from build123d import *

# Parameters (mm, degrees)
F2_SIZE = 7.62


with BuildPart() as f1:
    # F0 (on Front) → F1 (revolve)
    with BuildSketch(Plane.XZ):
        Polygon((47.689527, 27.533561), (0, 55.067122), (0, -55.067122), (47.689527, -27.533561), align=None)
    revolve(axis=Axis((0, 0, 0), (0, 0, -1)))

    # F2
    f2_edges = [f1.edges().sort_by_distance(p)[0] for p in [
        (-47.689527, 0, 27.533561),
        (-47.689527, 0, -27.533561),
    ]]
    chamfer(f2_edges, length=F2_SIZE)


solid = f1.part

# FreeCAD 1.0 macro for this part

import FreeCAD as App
import Part
import Sketcher

V = App.Vector
Q = App.Units.Quantity


def edges_at(feature, points):
    """Names of the edges that pass closest to the given points."""
    edges = feature.Shape.Edges
    near = lambda p: min(range(len(edges)), key=lambda i: edges[i].distToShape(Part.Vertex(*p))[0])
    return sorted({f"Edge{near(p) + 1}" for p in points})


def add_polygon(sketch, points):
    """Adds a closed chain of lines whose ends are joined by coincident constraints."""
    first, n = sketch.GeometryCount, len(points)
    for a, b in zip(points, points[1:] + points[:1]):
        sketch.addGeometry(Part.LineSegment(App.Vector(*a, 0), App.Vector(*b, 0)), False)
    for i in range(n):
        sketch.addConstraint(Sketcher.Constraint("Coincident", first + i, 2, first + (i + 1) % n, 1))

doc = App.newDocument("Part")
params = doc.addObject("Spreadsheet::Sheet", "Params")
for row, (alias, value) in enumerate([
    ("revolution_angle", "360 deg"),
    ("chamfer_size", "0.3 in"),
], start=1):
    params.set(f"A{row}", alias)
    params.set(f"B{row}", "=" + value)
    params.setAlias(f"B{row}", alias)

body = doc.addObject("PartDesign::Body", "Body")

sketch1 = doc.addObject("Sketcher::SketchObject", "Sketch")
body.addObject(sketch1)
sketch1.AttachmentSupport = (doc.XZ_Plane, [""])
sketch1.MapMode = "FlatFace"
add_polygon(sketch1, [(48, 28), (0, 55), (0, -55), (48, -28)])
sketch1.addConstraint([
    Sketcher.Constraint("Vertical", 1),
    Sketcher.Constraint("Vertical", 3),
    Sketcher.Constraint("Symmetric", 0, 2, 1, 2, -1, 1),
    Sketcher.Constraint("Equal", 0, 2),
    Sketcher.Constraint("Angle", 0, Q("150 deg")),
    Sketcher.Constraint("DistanceY", 3, 1, 3, 2, Q("55.067122 mm")),
    Sketcher.Constraint("DistanceY", 1, 2, 1, 1, Q("110.134244 mm")),
])
revolution = doc.addObject("PartDesign::Revolution", "Revolution")
body.addObject(revolution)
revolution.Profile = sketch1
revolution.ReferenceAxis = (sketch1, ["V_Axis"])
revolution.setExpression("Angle", "Params.revolution_angle")
doc.recompute()

chamfer = doc.addObject("PartDesign::Chamfer", "Chamfer")
body.addObject(chamfer)
chamfer.Base = (revolution, edges_at(revolution, [(-47.69, 0, 27.534), (-47.69, 0, -27.534)]))
chamfer.setExpression("Size", "Params.chamfer_size")

doc.recompute()
